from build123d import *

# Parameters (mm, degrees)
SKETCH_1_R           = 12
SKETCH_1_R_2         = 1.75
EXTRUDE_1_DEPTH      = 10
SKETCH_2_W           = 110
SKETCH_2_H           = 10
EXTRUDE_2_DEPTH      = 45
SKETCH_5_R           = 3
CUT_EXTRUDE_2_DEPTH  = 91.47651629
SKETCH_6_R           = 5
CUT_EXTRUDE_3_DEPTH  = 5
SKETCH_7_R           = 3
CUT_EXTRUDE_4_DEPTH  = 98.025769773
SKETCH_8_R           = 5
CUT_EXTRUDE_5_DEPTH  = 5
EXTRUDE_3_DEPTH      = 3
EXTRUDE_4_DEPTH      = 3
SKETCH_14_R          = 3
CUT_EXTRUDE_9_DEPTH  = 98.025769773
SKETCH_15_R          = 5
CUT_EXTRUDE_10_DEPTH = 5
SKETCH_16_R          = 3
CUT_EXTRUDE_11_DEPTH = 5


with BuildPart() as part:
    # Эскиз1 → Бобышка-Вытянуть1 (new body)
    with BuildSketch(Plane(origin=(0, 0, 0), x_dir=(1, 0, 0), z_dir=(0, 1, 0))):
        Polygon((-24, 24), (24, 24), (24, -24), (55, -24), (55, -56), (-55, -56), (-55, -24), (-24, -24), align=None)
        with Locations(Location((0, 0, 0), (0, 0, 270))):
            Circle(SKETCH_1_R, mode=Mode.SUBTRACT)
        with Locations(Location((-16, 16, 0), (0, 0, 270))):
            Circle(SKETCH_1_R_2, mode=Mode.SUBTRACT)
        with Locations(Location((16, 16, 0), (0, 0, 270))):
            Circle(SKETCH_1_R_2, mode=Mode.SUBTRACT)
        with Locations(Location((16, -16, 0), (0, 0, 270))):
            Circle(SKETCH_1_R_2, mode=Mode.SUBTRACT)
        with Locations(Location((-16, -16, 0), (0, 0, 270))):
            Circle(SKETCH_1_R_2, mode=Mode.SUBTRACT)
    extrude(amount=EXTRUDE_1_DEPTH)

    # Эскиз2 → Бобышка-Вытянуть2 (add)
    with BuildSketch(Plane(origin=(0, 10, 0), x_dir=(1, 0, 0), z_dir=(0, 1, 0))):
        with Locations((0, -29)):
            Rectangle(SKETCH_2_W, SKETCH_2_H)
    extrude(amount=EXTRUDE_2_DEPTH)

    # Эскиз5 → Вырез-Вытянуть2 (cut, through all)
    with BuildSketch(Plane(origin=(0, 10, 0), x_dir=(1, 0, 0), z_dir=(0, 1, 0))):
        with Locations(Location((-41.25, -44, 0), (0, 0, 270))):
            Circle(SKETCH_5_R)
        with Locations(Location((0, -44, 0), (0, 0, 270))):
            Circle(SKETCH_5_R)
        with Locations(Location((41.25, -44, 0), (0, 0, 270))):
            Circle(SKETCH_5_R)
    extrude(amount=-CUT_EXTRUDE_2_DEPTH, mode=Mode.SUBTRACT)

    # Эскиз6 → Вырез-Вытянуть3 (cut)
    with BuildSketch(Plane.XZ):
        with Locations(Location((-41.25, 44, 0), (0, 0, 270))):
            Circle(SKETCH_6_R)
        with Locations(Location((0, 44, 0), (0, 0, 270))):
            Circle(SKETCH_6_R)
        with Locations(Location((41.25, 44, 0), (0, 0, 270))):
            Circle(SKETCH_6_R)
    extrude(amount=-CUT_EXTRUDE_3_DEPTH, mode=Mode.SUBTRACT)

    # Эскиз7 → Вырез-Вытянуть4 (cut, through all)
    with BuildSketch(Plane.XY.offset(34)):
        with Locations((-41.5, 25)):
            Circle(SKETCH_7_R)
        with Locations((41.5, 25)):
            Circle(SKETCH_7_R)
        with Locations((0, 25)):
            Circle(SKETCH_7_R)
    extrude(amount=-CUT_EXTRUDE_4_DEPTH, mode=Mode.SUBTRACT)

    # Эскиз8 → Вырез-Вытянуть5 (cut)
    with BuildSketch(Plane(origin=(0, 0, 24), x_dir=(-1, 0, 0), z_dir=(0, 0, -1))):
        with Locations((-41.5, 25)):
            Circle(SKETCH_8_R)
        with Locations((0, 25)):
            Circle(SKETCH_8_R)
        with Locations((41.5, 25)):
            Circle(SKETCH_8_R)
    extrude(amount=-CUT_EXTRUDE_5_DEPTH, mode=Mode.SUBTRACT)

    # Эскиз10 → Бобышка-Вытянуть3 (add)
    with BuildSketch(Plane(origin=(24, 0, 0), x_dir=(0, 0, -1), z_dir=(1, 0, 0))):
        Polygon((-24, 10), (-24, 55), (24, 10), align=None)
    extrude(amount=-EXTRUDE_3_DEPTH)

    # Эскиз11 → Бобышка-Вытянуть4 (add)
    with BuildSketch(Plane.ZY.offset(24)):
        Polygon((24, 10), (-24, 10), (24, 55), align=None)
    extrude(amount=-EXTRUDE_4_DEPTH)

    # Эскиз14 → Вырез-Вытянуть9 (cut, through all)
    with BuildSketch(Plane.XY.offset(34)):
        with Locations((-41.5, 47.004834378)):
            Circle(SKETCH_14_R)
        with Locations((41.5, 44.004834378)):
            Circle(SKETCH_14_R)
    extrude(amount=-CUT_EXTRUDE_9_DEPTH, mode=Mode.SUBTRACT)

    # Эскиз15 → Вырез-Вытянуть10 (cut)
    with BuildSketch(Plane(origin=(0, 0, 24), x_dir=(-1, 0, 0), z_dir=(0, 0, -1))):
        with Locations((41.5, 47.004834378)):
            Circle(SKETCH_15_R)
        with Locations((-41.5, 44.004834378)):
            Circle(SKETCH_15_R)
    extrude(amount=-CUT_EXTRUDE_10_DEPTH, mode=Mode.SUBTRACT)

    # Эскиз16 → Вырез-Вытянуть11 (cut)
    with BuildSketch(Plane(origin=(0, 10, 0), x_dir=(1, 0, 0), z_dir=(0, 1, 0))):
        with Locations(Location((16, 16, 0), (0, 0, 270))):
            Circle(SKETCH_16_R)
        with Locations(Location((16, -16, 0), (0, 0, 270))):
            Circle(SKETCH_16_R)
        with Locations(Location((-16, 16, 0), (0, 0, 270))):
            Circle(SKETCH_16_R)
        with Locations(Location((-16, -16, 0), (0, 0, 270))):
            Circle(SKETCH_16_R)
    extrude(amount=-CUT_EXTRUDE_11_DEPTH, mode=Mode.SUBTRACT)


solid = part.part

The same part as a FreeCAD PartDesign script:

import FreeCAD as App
import Part
import Sketcher

V = App.Vector
Q = App.Units.Quantity


def add_polygon(sketch, points):
    """Adds a closed chain of lines whose ends are joined by coincident constraints."""
    first, n = sketch.GeometryCount, len(points)
    for a, b in zip(points, points[1:] + points[:1]):
        sketch.addGeometry(Part.LineSegment(App.Vector(*a, 0), App.Vector(*b, 0)), False)
    for i in range(n):
        sketch.addConstraint(Sketcher.Constraint("Coincident", first + i, 2, first + (i + 1) % n, 1))

doc = App.newDocument("Part")
params = doc.addObject("Spreadsheet::Sheet", "Params")
for row, (alias, value) in enumerate([
    ("sketch1_diameter", "24 mm"),
    ("sketch1_diameter2", "3.5 mm"),
    ("sketch1_width", "48 mm"),
    ("sketch1_width2", "31 mm"),
    ("sketch1_height", "32 mm"),
    ("pad1_length", "10 mm"),
    ("sketch2_width", "110 mm"),
    ("sketch2_height", "10 mm"),
    ("pad2_length", "45 mm"),
    ("sketch3_diameter", "6 mm"),
    ("sketch4_diameter", "10 mm"),
    ("pocket2_length", "5 mm"),
    ("sketch5_diameter", "6 mm"),
    ("sketch6_diameter", "10 mm"),
    ("pocket4_length", "5 mm"),
    ("sketch7_width", "45 mm"),
    ("sketch7_height", "48 mm"),
    ("pad3_length", "3 mm"),
    ("sketch8_width", "45 mm"),
    ("sketch8_height", "48 mm"),
    ("pad4_length", "3 mm"),
    ("sketch9_diameter", "6 mm"),
    ("sketch10_diameter", "10 mm"),
    ("pocket6_length", "5 mm"),
    ("sketch11_diameter", "6 mm"),
    ("pocket7_length", "5 mm"),
], start=1):
    params.set(f"A{row}", alias)
    params.set(f"B{row}", "=" + value)
    params.setAlias(f"B{row}", alias)

body = doc.addObject("PartDesign::Body", "Body")

# Sketch on XZ plane
sketch1 = body.newObject("Sketcher::SketchObject", "Sketch")
sketch1.AttachmentSupport = (doc.getObject("XZ_Plane"), [""])
sketch1.MapMode = "FlatFace"
add_polygon(sketch1, [(24, -24), (-24, -24), (-24, 24), (-55, 24), (-55, 56), (55, 56), (55, 24), (24, 24)])  # lines 0-7
sketch1.addGeometry(Part.Circle(V(16, 16, 0), V(0, 0, 1), 1.8), False)  # 8
sketch1.addGeometry(Part.Circle(V(-16, 16, 0), V(0, 0, 1), 1.8), False)  # 9
sketch1.addGeometry(Part.Circle(V(16, -16, 0), V(0, 0, 1), 1.8), False)  # 10
sketch1.addGeometry(Part.Circle(V(0, 0, 0), V(0, 0, 1), 12), False)  # 11
sketch1.addGeometry(Part.Circle(V(-16, -16, 0), V(0, 0, 1), 1.8), False)  # 12
sketch1.addConstraint(Sketcher.Constraint("Horizontal", 0))
sketch1.addConstraint(Sketcher.Constraint("Vertical", 1))
sketch1.addConstraint(Sketcher.Constraint("Horizontal", 2))
sketch1.addConstraint(Sketcher.Constraint("Vertical", 3))
sketch1.addConstraint(Sketcher.Constraint("Horizontal", 4))
sketch1.addConstraint(Sketcher.Constraint("Vertical", 5))
sketch1.addConstraint(Sketcher.Constraint("Horizontal", 6))
sketch1.addConstraint(Sketcher.Constraint("Vertical", 7))
sketch1.addConstraint(Sketcher.Constraint("Coincident", 11, 3, -1, 1))
sketch1.addConstraint(Sketcher.Constraint("Equal", 8, 9))
sketch1.addConstraint(Sketcher.Constraint("Equal", 9, 10))
sketch1.addConstraint(Sketcher.Constraint("Equal", 10, 12))
sketch1.addConstraint(Sketcher.Constraint("Symmetric", 9, 3, 10, 3, -1, 1))
sketch1.addConstraint(Sketcher.Constraint("Symmetric", 8, 3, 12, 3, -1, 1))
sketch1.addConstraint(Sketcher.Constraint("Symmetric", 0, 2, 6, 2, -1, 1))
sketch1.addConstraint(Sketcher.Constraint("Symmetric", 8, 3, 9, 3, -2))
sketch1.addConstraint(Sketcher.Constraint("Symmetric", 2, 2, 5, 2, -2))
sketch1.addConstraint(Sketcher.Constraint("Equal", 0, 1))
sketch1.addConstraint(Sketcher.Constraint("Diameter", 11, Q("24 mm")))
sketch1.addConstraint(Sketcher.Constraint("Diameter", 8, Q("3.5 mm")))
sketch1.addConstraint(Sketcher.Constraint("DistanceX", 0, 2, 0, 1, Q("48 mm")))
sketch1.addConstraint(Sketcher.Constraint("DistanceX", 2, 2, 2, 1, Q("31 mm")))
sketch1.addConstraint(Sketcher.Constraint("DistanceY", 3, 1, 3, 2, Q("32 mm")))
sketch1.addConstraint(Sketcher.Constraint("DistanceX", -1, 1, 8, 3, Q("16 mm")))
sketch1.addConstraint(Sketcher.Constraint("DistanceY", -1, 1, 8, 3, Q("16 mm")))
sketch1.setExpression("Constraints[26]", "Params.sketch1_diameter")
sketch1.setExpression("Constraints[27]", "Params.sketch1_diameter2")
sketch1.setExpression("Constraints[28]", "Params.sketch1_width")
sketch1.setExpression("Constraints[29]", "Params.sketch1_width2")
sketch1.setExpression("Constraints[30]", "Params.sketch1_height")
pad1 = body.newObject("PartDesign::Pad", "Pad")
pad1.Profile = sketch1
pad1.setExpression("Length", "Params.pad1_length")
pad1.Reversed = True

# Sketch on XZ plane
sketch2 = body.newObject("Sketcher::SketchObject", "Sketch001")
sketch2.AttachmentSupport = (doc.getObject("XZ_Plane"), [""])
sketch2.MapMode = "FlatFace"
sketch2.AttachmentOffset = App.Placement(V(0, 0, -10), App.Rotation())
add_polygon(sketch2, [(-55, 24), (-55, 34), (55, 34), (55, 24)])  # lines 0-3
sketch2.addConstraint(Sketcher.Constraint("Vertical", 0))
sketch2.addConstraint(Sketcher.Constraint("Horizontal", 1))
sketch2.addConstraint(Sketcher.Constraint("Vertical", 2))
sketch2.addConstraint(Sketcher.Constraint("Horizontal", 3))
sketch2.addConstraint(Sketcher.Constraint("DistanceX", 1, 1, 1, 2, Q("110 mm")))
sketch2.addConstraint(Sketcher.Constraint("DistanceY", 0, 1, 0, 2, Q("10 mm")))
sketch2.addConstraint(Sketcher.Constraint("DistanceX", 0, 2, -1, 1, Q("55 mm")))
sketch2.addConstraint(Sketcher.Constraint("DistanceY", -1, 1, 0, 2, Q("34 mm")))
sketch2.setExpression("Constraints[8]", "Params.sketch2_width")
sketch2.setExpression("Constraints[9]", "Params.sketch2_height")
pad2 = body.newObject("PartDesign::Pad", "Pad001")
pad2.Profile = sketch2
pad2.setExpression("Length", "Params.pad2_length")
pad2.Reversed = True

# Sketch on XZ plane
sketch3 = body.newObject("Sketcher::SketchObject", "Sketch002")
sketch3.AttachmentSupport = (doc.getObject("XZ_Plane"), [""])
sketch3.MapMode = "FlatFace"
sketch3.AttachmentOffset = App.Placement(V(0, 0, -10), App.Rotation())
sketch3.addGeometry(Part.Circle(V(-41.2, 44, 0), V(0, 0, 1), 3), False)
sketch3.addGeometry(Part.Circle(V(0, 44, 0), V(0, 0, 1), 3), False)
sketch3.addGeometry(Part.Circle(V(41.2, 44, 0), V(0, 0, 1), 3), False)
sketch3.addConstraint(Sketcher.Constraint("Equal", 0, 1))
sketch3.addConstraint(Sketcher.Constraint("Equal", 1, 2))
sketch3.addConstraint(Sketcher.Constraint("Symmetric", 0, 3, 2, 3, -2))
sketch3.addConstraint(Sketcher.Constraint("PointOnObject", 1, 3, -2))
sketch3.addConstraint(Sketcher.Constraint("Horizontal", 0, 3, 1, 3))
sketch3.addConstraint(Sketcher.Constraint("Diameter", 0, Q("6 mm")))
sketch3.addConstraint(Sketcher.Constraint("DistanceY", -1, 1, 0, 3, Q("44 mm")))
sketch3.addConstraint(Sketcher.Constraint("DistanceX", 0, 3, 2, 3, Q("82.5 mm")))
sketch3.setExpression("Constraints[5]", "Params.sketch3_diameter")
pocket1 = body.newObject("PartDesign::Pocket", "Pocket")
pocket1.Profile = sketch3
pocket1.Type = "ThroughAll"
pocket1.Reversed = True

# Sketch on XZ plane
sketch4 = body.newObject("Sketcher::SketchObject", "Sketch003")
sketch4.AttachmentSupport = (doc.getObject("XZ_Plane"), [""])
sketch4.MapMode = "FlatFace"
sketch4.addGeometry(Part.Circle(V(-41, 44, 0), V(0, 0, 1), 5), False)
sketch4.addGeometry(Part.Circle(V(0, 44, 0), V(0, 0, 1), 5), False)
sketch4.addGeometry(Part.Circle(V(41, 44, 0), V(0, 0, 1), 5), False)
sketch4.addConstraint(Sketcher.Constraint("Equal", 0, 1))
sketch4.addConstraint(Sketcher.Constraint("Equal", 1, 2))
sketch4.addConstraint(Sketcher.Constraint("Symmetric", 0, 3, 2, 3, -2))
sketch4.addConstraint(Sketcher.Constraint("PointOnObject", 1, 3, -2))
sketch4.addConstraint(Sketcher.Constraint("Horizontal", 0, 3, 1, 3))
sketch4.addConstraint(Sketcher.Constraint("Diameter", 0, Q("10 mm")))
sketch4.addConstraint(Sketcher.Constraint("DistanceY", -1, 1, 0, 3, Q("44 mm")))
sketch4.addConstraint(Sketcher.Constraint("DistanceX", 0, 3, 2, 3, Q("82.5 mm")))
sketch4.setExpression("Constraints[5]", "Params.sketch4_diameter")
pocket2 = body.newObject("PartDesign::Pocket", "Pocket001")
pocket2.Profile = sketch4
pocket2.setExpression("Length", "Params.pocket2_length")

# Sketch on XY plane
sketch5 = body.newObject("Sketcher::SketchObject", "Sketch004")
sketch5.AttachmentSupport = (doc.getObject("XY_Plane"), [""])
sketch5.MapMode = "FlatFace"
sketch5.AttachmentOffset = App.Placement(V(0, 0, 34), App.Rotation())
sketch5.addGeometry(Part.Circle(V(-41.5, 25, 0), V(0, 0, 1), 3), False)
sketch5.addGeometry(Part.Circle(V(41.5, 25, 0), V(0, 0, 1), 3), False)
sketch5.addGeometry(Part.Circle(V(0, 25, 0), V(0, 0, 1), 3), False)
sketch5.addConstraint(Sketcher.Constraint("Equal", 0, 1))
sketch5.addConstraint(Sketcher.Constraint("Equal", 1, 2))
sketch5.addConstraint(Sketcher.Constraint("Symmetric", 0, 3, 1, 3, -2))
sketch5.addConstraint(Sketcher.Constraint("PointOnObject", 2, 3, -2))
sketch5.addConstraint(Sketcher.Constraint("Horizontal", 1, 3, 2, 3))
sketch5.addConstraint(Sketcher.Constraint("Diameter", 0, Q("6 mm")))
sketch5.addConstraint(Sketcher.Constraint("DistanceY", -1, 1, 0, 3, Q("25 mm")))
sketch5.addConstraint(Sketcher.Constraint("DistanceX", 0, 3, 1, 3, Q("83 mm")))
sketch5.setExpression("Constraints[5]", "Params.sketch5_diameter")
pocket3 = body.newObject("PartDesign::Pocket", "Pocket002")
pocket3.Profile = sketch5
pocket3.Type = "ThroughAll"

# Sketch on XY plane
sketch6 = body.newObject("Sketcher::SketchObject", "Sketch005")
sketch6.AttachmentSupport = (doc.getObject("XY_Plane"), [""])
sketch6.MapMode = "FlatFace"
sketch6.AttachmentOffset = App.Placement(V(0, 0, 24), App.Rotation())
sketch6.addGeometry(Part.Circle(V(42, 25, 0), V(0, 0, 1), 5), False)
sketch6.addGeometry(Part.Circle(V(0, 25, 0), V(0, 0, 1), 5), False)
sketch6.addGeometry(Part.Circle(V(-42, 25, 0), V(0, 0, 1), 5), False)
sketch6.addConstraint(Sketcher.Constraint("Equal", 0, 1))
sketch6.addConstraint(Sketcher.Constraint("Equal", 1, 2))
sketch6.addConstraint(Sketcher.Constraint("Symmetric", 0, 3, 2, 3, -2))
sketch6.addConstraint(Sketcher.Constraint("PointOnObject", 1, 3, -2))
sketch6.addConstraint(Sketcher.Constraint("Horizontal", 0, 3, 1, 3))
sketch6.addConstraint(Sketcher.Constraint("Diameter", 0, Q("10 mm")))
sketch6.addConstraint(Sketcher.Constraint("DistanceY", -1, 1, 0, 3, Q("25 mm")))
sketch6.addConstraint(Sketcher.Constraint("DistanceX", 2, 3, 0, 3, Q("83 mm")))
sketch6.setExpression("Constraints[5]", "Params.sketch6_diameter")
pocket4 = body.newObject("PartDesign::Pocket", "Pocket003")
pocket4.Profile = sketch6
pocket4.setExpression("Length", "Params.pocket4_length")
pocket4.Reversed = True

# Sketch on YZ plane
sketch7 = body.newObject("Sketcher::SketchObject", "Sketch006")
sketch7.AttachmentSupport = (doc.getObject("YZ_Plane"), [""])
sketch7.MapMode = "FlatFace"
sketch7.AttachmentOffset = App.Placement(V(0, 0, 24), App.Rotation())
add_polygon(sketch7, [(55, 24), (10, 24), (10, -24)])  # lines 0-2
sketch7.addConstraint(Sketcher.Constraint("Horizontal", 0))
sketch7.addConstraint(Sketcher.Constraint("Vertical", 1))
sketch7.addConstraint(Sketcher.Constraint("DistanceX", 0, 2, 0, 1, Q("45 mm")))
sketch7.addConstraint(Sketcher.Constraint("DistanceY", 1, 2, 1, 1, Q("48 mm")))
sketch7.addConstraint(Sketcher.Constraint("DistanceX", -1, 1, 0, 2, Q("10 mm")))
sketch7.addConstraint(Sketcher.Constraint("DistanceY", -1, 1, 0, 2, Q("24 mm")))
sketch7.setExpression("Constraints[5]", "Params.sketch7_width")
sketch7.setExpression("Constraints[6]", "Params.sketch7_height")
pad3 = body.newObject("PartDesign::Pad", "Pad002")
pad3.Profile = sketch7
pad3.setExpression("Length", "Params.pad3_length")
pad3.Reversed = True

# Sketch on YZ plane
sketch8 = body.newObject("Sketcher::SketchObject", "Sketch007")
sketch8.AttachmentSupport = (doc.getObject("YZ_Plane"), [""])
sketch8.MapMode = "FlatFace"
sketch8.AttachmentOffset = App.Placement(V(0, 0, -24), App.Rotation())
add_polygon(sketch8, [(10, -24), (10, 24), (55, 24)])  # lines 0-2
sketch8.addConstraint(Sketcher.Constraint("Vertical", 0))
sketch8.addConstraint(Sketcher.Constraint("Horizontal", 1))
sketch8.addConstraint(Sketcher.Constraint("DistanceX", 1, 1, 1, 2, Q("45 mm")))
sketch8.addConstraint(Sketcher.Constraint("DistanceY", 0, 1, 0, 2, Q("48 mm")))
sketch8.addConstraint(Sketcher.Constraint("DistanceX", -1, 1, 0, 2, Q("10 mm")))
sketch8.addConstraint(Sketcher.Constraint("DistanceY", -1, 1, 0, 2, Q("24 mm")))
sketch8.setExpression("Constraints[5]", "Params.sketch8_width")
sketch8.setExpression("Constraints[6]", "Params.sketch8_height")
pad4 = body.newObject("PartDesign::Pad", "Pad003")
pad4.Profile = sketch8
pad4.setExpression("Length", "Params.pad4_length")

# Sketch on XY plane
sketch9 = body.newObject("Sketcher::SketchObject", "Sketch008")
sketch9.AttachmentSupport = (doc.getObject("XY_Plane"), [""])
sketch9.MapMode = "FlatFace"
sketch9.AttachmentOffset = App.Placement(V(0, 0, 34), App.Rotation())
sketch9.addGeometry(Part.Circle(V(-41.5, 47, 0), V(0, 0, 1), 3), False)
sketch9.addGeometry(Part.Circle(V(41.5, 44, 0), V(0, 0, 1), 3), False)
sketch9.addConstraint(Sketcher.Constraint("Equal", 0, 1))
sketch9.addConstraint(Sketcher.Constraint("Diameter", 0, Q("6 mm")))
sketch9.addConstraint(Sketcher.Constraint("DistanceX", 0, 3, 1, 3, Q("83 mm")))
sketch9.addConstraint(Sketcher.Constraint("DistanceY", 1, 3, 0, 3, Q("3 mm")))
sketch9.addConstraint(Sketcher.Constraint("DistanceX", 0, 3, -1, 1, Q("41.5 mm")))
sketch9.addConstraint(Sketcher.Constraint("DistanceY", -1, 1, 0, 3, Q("47.004834 mm")))
sketch9.setExpression("Constraints[1]", "Params.sketch9_diameter")
pocket5 = body.newObject("PartDesign::Pocket", "Pocket004")
pocket5.Profile = sketch9
pocket5.Type = "ThroughAll"

# Sketch on XY plane
sketch10 = body.newObject("Sketcher::SketchObject", "Sketch009")
sketch10.AttachmentSupport = (doc.getObject("XY_Plane"), [""])
sketch10.MapMode = "FlatFace"
sketch10.AttachmentOffset = App.Placement(V(0, 0, 24), App.Rotation())
sketch10.addGeometry(Part.Circle(V(-42, 47, 0), V(0, 0, 1), 5), False)
sketch10.addGeometry(Part.Circle(V(42, 44, 0), V(0, 0, 1), 5), False)
sketch10.addConstraint(Sketcher.Constraint("Equal", 0, 1))
sketch10.addConstraint(Sketcher.Constraint("Diameter", 0, Q("10 mm")))
sketch10.addConstraint(Sketcher.Constraint("DistanceX", 0, 3, 1, 3, Q("83 mm")))
sketch10.addConstraint(Sketcher.Constraint("DistanceY", 1, 3, 0, 3, Q("3 mm")))
sketch10.addConstraint(Sketcher.Constraint("DistanceX", 0, 3, -1, 1, Q("41.5 mm")))
sketch10.addConstraint(Sketcher.Constraint("DistanceY", -1, 1, 0, 3, Q("47.004834 mm")))
sketch10.setExpression("Constraints[1]", "Params.sketch10_diameter")
pocket6 = body.newObject("PartDesign::Pocket", "Pocket005")
pocket6.Profile = sketch10
pocket6.setExpression("Length", "Params.pocket6_length")
pocket6.Reversed = True

# Sketch on XZ plane
sketch11 = body.newObject("Sketcher::SketchObject", "Sketch010")
sketch11.AttachmentSupport = (doc.getObject("XZ_Plane"), [""])
sketch11.MapMode = "FlatFace"
sketch11.AttachmentOffset = App.Placement(V(0, 0, -10), App.Rotation())
sketch11.addGeometry(Part.Circle(V(16, -16, 0), V(0, 0, 1), 3), False)
sketch11.addGeometry(Part.Circle(V(16, 16, 0), V(0, 0, 1), 3), False)
sketch11.addGeometry(Part.Circle(V(-16, -16, 0), V(0, 0, 1), 3), False)
sketch11.addGeometry(Part.Circle(V(-16, 16, 0), V(0, 0, 1), 3), False)
sketch11.addConstraint(Sketcher.Constraint("Equal", 0, 1))
sketch11.addConstraint(Sketcher.Constraint("Equal", 1, 2))
sketch11.addConstraint(Sketcher.Constraint("Equal", 2, 3))
sketch11.addConstraint(Sketcher.Constraint("Symmetric", 1, 3, 2, 3, -1, 1))
sketch11.addConstraint(Sketcher.Constraint("Symmetric", 0, 3, 3, 3, -1, 1))
sketch11.addConstraint(Sketcher.Constraint("Symmetric", 0, 3, 2, 3, -2))
sketch11.addConstraint(Sketcher.Constraint("Diameter", 0, Q("6 mm")))
sketch11.addConstraint(Sketcher.Constraint("DistanceX", -1, 1, 0, 3, Q("16 mm")))
sketch11.addConstraint(Sketcher.Constraint("DistanceY", 0, 3, -1, 1, Q("16 mm")))
sketch11.setExpression("Constraints[6]", "Params.sketch11_diameter")
pocket7 = body.newObject("PartDesign::Pocket", "Pocket006")
pocket7.Profile = sketch11
pocket7.setExpression("Length", "Params.pocket7_length")
pocket7.Reversed = True

doc.recompute()
